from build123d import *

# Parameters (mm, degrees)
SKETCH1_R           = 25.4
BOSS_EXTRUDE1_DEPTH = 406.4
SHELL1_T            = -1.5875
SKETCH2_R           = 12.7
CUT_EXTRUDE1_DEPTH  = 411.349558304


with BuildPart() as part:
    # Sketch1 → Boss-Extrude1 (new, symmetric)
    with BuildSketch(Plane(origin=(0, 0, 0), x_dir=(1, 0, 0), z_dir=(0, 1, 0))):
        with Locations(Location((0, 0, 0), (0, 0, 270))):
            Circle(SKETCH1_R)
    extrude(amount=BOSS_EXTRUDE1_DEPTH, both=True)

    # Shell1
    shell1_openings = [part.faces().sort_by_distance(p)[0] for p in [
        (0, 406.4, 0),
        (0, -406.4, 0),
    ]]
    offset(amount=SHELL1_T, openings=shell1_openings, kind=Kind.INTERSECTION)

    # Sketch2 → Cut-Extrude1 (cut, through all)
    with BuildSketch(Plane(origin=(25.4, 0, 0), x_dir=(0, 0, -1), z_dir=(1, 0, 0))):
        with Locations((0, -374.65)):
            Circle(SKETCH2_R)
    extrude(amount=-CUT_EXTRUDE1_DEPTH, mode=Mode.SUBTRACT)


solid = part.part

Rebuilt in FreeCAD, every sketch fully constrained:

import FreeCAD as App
import Part
import Sketcher
Q = App.Units.Quantity


def faces_at(feature, points):
    """Names of the faces that lie closest to the given points."""
    faces = feature.Shape.Faces
    near = lambda p: min(range(len(faces)), key=lambda i: faces[i].distToShape(Part.Vertex(*p))[0])
    return sorted({f"Face{near(p) + 1}" for p in points})

doc = App.newDocument("Part")
body = doc.addObject("PartDesign::Body", "Body")

# Sketch on XZ plane
sketch1 = body.newObject("Sketcher::SketchObject", "Sketch")
sketch1.AttachmentSupport = (doc.getObject("XZ_Plane"), [""])
sketch1.MapMode = "FlatFace"
sketch1.addGeometry(Part.Circle(App.Vector(0, 0, 0), App.Vector(0, 0, 1), 25.4), False)
sketch1.addConstraint([
    Sketcher.Constraint("Coincident", 0, 3, -1, 1),
    Sketcher.Constraint("Diameter", 0, Q("2 in")),
])
pad1 = body.newObject("PartDesign::Pad", "Pad")
pad1.Profile = sketch1
pad1.Length = Q("32 in")
pad1.Midplane = True
doc.recompute()

thickness = body.newObject("PartDesign::Thickness", "Thickness")
thickness.Base = (pad1, faces_at(pad1, [(0, 406.4, 0), (0, -406.4, 0)]))
thickness.Value = Q("0.0625 in")
thickness.Reversed = True
thickness.Join = "Intersection"

# Sketch on YZ plane
sketch2 = body.newObject("Sketcher::SketchObject", "Sketch001")
sketch2.AttachmentSupport = (doc.getObject("YZ_Plane"), [""])
sketch2.MapMode = "FlatFace"
sketch2.AttachmentOffset = App.Placement(App.Vector(0, 0, 1 * 25.4), App.Rotation())
sketch2.addGeometry(Part.Circle(App.Vector(-374.65, 0, 0), App.Vector(0, 0, 1), 12.7), False)
sketch2.addConstraint([
    Sketcher.Constraint("PointOnObject", 0, 3, -1),
    Sketcher.Constraint("Diameter", 0, Q("1 in")),
    Sketcher.Constraint("DistanceX", 0, 3, -1, 1, Q("14.75 in")),
])
pocket1 = body.newObject("PartDesign::Pocket", "Pocket")
pocket1.Profile = sketch2
pocket1.Type = "ThroughAll"

doc.recompute()
